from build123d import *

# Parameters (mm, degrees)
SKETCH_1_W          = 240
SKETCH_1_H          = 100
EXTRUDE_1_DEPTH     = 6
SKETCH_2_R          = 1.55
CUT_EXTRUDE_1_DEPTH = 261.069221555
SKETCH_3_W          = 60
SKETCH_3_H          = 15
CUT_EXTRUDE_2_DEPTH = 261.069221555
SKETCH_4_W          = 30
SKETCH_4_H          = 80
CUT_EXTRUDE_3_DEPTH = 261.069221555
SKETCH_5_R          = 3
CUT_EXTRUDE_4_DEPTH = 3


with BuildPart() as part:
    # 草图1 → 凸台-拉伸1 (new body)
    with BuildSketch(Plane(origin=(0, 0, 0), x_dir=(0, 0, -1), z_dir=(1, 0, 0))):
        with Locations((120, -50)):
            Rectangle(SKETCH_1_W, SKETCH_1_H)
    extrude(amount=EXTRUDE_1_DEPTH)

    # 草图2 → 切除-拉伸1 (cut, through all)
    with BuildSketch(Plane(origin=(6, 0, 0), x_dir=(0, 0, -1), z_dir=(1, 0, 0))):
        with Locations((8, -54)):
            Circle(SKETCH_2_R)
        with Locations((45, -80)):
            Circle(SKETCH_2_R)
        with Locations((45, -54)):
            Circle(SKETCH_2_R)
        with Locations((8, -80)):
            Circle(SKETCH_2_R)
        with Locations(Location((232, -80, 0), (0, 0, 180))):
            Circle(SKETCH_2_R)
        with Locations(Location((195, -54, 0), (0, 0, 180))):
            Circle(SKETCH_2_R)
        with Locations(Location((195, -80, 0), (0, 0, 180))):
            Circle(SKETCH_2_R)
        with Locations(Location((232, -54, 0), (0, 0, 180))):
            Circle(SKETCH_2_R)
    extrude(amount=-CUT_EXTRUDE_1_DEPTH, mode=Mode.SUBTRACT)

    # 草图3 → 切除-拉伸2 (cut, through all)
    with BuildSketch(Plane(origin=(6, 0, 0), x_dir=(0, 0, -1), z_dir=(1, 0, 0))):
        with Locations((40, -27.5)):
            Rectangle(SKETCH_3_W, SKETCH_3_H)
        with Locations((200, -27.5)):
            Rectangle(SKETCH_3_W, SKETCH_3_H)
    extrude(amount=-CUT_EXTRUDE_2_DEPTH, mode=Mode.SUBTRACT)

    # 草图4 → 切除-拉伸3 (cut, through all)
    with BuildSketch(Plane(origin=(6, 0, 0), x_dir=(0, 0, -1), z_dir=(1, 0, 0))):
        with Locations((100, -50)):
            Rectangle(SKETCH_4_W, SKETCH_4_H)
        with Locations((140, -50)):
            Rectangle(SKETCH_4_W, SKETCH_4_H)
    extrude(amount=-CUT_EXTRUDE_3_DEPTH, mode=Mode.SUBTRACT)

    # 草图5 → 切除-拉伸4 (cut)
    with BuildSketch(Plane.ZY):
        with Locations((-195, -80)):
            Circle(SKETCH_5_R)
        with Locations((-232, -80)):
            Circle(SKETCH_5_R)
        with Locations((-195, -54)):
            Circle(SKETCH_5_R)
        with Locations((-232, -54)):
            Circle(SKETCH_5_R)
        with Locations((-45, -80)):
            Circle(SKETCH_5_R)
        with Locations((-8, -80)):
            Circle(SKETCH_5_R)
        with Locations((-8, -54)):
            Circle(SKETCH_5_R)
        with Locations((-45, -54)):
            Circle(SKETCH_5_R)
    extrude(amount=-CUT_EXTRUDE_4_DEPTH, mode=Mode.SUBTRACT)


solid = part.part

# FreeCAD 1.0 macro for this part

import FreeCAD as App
import Part
import Sketcher
from FreeCAD import Vector
Q = App.Units.Quantity


def add_polygon(sketch, points):
    """Adds a closed chain of lines whose ends are joined by coincident constraints."""
    first, n = sketch.GeometryCount, len(points)
    for a, b in zip(points, points[1:] + points[:1]):
        sketch.addGeometry(Part.LineSegment(App.Vector(*a, 0), App.Vector(*b, 0)), False)
    for i in range(n):
        sketch.addConstraint(Sketcher.Constraint("Coincident", first + i, 2, first + (i + 1) % n, 1))

doc = App.newDocument("Part")
body = doc.addObject("PartDesign::Body", "Body")

# Sketch on YZ plane
sketch1 = body.newObject("Sketcher::SketchObject", "Sketch")
sketch1.AttachmentSupport = (doc.getObject("YZ_Plane"), [""])
sketch1.MapMode = "FlatFace"
add_polygon(sketch1, [(0, 0), (-100, 0), (-100, -240), (0, -240)])  # lines 0-3
sketch1.addConstraint([
    Sketcher.Constraint("Horizontal", 0),
    Sketcher.Constraint("Vertical", 1),
    Sketcher.Constraint("Horizontal", 2),
    Sketcher.Constraint("Vertical", 3),
    Sketcher.Constraint("Coincident", 3, 2, -1, 1),
    Sketcher.Constraint("DistanceX", 0, 2, 0, 1, Q("100 mm")),
    Sketcher.Constraint("DistanceY", 1, 2, 1, 1, Q("240 mm")),
])
pad1 = body.newObject("PartDesign::Pad", "Pad")
pad1.Profile = sketch1
pad1.Length = 6

# Sketch on YZ plane
sketch2 = body.newObject("Sketcher::SketchObject", "Sketch001")
sketch2.AttachmentSupport = (doc.getObject("YZ_Plane"), [""])
sketch2.MapMode = "FlatFace"
sketch2.AttachmentOffset = App.Placement(Vector(0, 0, 6), App.Rotation())
sketch2.addGeometry([
    Part.Circle(Vector(-54, -8, 0), Vector(0, 0, 1), 1.55),  # 0
    Part.Circle(Vector(-80, -45, 0), Vector(0, 0, 1), 1.55),  # 1
    Part.Circle(Vector(-54, -45, 0), Vector(0, 0, 1), 1.55),  # 2
    Part.Circle(Vector(-80, -8, 0), Vector(0, 0, 1), 1.55),  # 3
    Part.Circle(Vector(-80, -232, 0), Vector(0, 0, 1), 1.55),  # 4
    Part.Circle(Vector(-54, -195, 0), Vector(0, 0, 1), 1.55),  # 5
    Part.Circle(Vector(-80, -195, 0), Vector(0, 0, 1), 1.55),  # 6
    Part.Circle(Vector(-54, -232, 0), Vector(0, 0, 1), 1.55),  # 7
], False)
sketch2.addConstraint([
    Sketcher.Constraint("Equal", 0, 1),
    Sketcher.Constraint("Equal", 1, 2),
    Sketcher.Constraint("Equal", 2, 3),
    Sketcher.Constraint("Equal", 3, 4),
    Sketcher.Constraint("Equal", 4, 5),
    Sketcher.Constraint("Equal", 5, 6),
    Sketcher.Constraint("Equal", 6, 7),
    Sketcher.Constraint("Horizontal", 1, 3, 2, 3),
    Sketcher.Constraint("Horizontal", 0, 3, 3, 3),
    Sketcher.Constraint("Horizontal", 5, 3, 6, 3),
    Sketcher.Constraint("Horizontal", 4, 3, 7, 3),
    Sketcher.Constraint("Vertical", 0, 3, 2, 3),
    Sketcher.Constraint("Vertical", 1, 3, 3, 3),
    Sketcher.Constraint("Vertical", 3, 3, 4, 3),
    Sketcher.Constraint("Vertical", 2, 3, 5, 3),
    Sketcher.Constraint("Vertical", 4, 3, 6, 3),
    Sketcher.Constraint("Vertical", 5, 3, 7, 3),
    Sketcher.Constraint("Diameter", 0, Q("3.1 mm")),
    Sketcher.Constraint("DistanceX", 0, 3, -1, 1, Q("54 mm")),
    Sketcher.Constraint("DistanceY", 0, 3, -1, 1, Q("8 mm")),
    Sketcher.Constraint("DistanceX", 1, 3, -1, 1, Q("80 mm")),
    Sketcher.Constraint("DistanceY", 1, 3, -1, 1, Q("45 mm")),
    Sketcher.Constraint("DistanceY", 4, 3, -1, 1, Q("232 mm")),
    Sketcher.Constraint("DistanceY", 5, 3, -1, 1, Q("195 mm")),
])
pocket1 = body.newObject("PartDesign::Pocket", "Pocket")
pocket1.Profile = sketch2
pocket1.Type = "ThroughAll"

# Sketch on YZ plane
sketch3 = body.newObject("Sketcher::SketchObject", "Sketch002")
sketch3.AttachmentSupport = (doc.getObject("YZ_Plane"), [""])
sketch3.MapMode = "FlatFace"
sketch3.AttachmentOffset = App.Placement(Vector(0, 0, 6), App.Rotation())
add_polygon(sketch3, [(-20, -10), (-35, -10), (-35, -70), (-20, -70)])  # lines 0-3
add_polygon(sketch3, [(-20, -170), (-35, -170), (-35, -230), (-20, -230)])  # lines 4-7
sketch3.addConstraint([
    Sketcher.Constraint("Horizontal", 0),
    Sketcher.Constraint("Vertical", 1),
    Sketcher.Constraint("Horizontal", 2),
    Sketcher.Constraint("Vertical", 3),
    Sketcher.Constraint("Horizontal", 4),
    Sketcher.Constraint("Vertical", 5),
    Sketcher.Constraint("Horizontal", 6),
    Sketcher.Constraint("Vertical", 7),
    Sketcher.Constraint("Vertical", 1, 2, 4, 2),
    Sketcher.Constraint("Vertical", 3, 2, 6, 2),
    Sketcher.Constraint("Equal", 3, 5),
    Sketcher.Constraint("DistanceX", 0, 2, 0, 1, Q("15 mm")),
    Sketcher.Constraint("DistanceY", 1, 2, 1, 1, Q("60 mm")),
    Sketcher.Constraint("DistanceX", 0, 2, -1, 1, Q("35 mm")),
    Sketcher.Constraint("DistanceY", 0, 2, -1, 1, Q("10 mm")),
    Sketcher.Constraint("DistanceY", 4, 2, -1, 1, Q("170 mm")),
])
pocket2 = body.newObject("PartDesign::Pocket", "Pocket001")
pocket2.Profile = sketch3
pocket2.Type = "ThroughAll"

# Sketch on YZ plane
sketch4 = body.newObject("Sketcher::SketchObject", "Sketch003")
sketch4.AttachmentSupport = (doc.getObject("YZ_Plane"), [""])
sketch4.MapMode = "FlatFace"
sketch4.AttachmentOffset = App.Placement(Vector(0, 0, 6), App.Rotation())
add_polygon(sketch4, [(-10, -85), (-90, -85), (-90, -115), (-10, -115)])  # lines 0-3
add_polygon(sketch4, [(-10, -125), (-90, -125), (-90, -155), (-10, -155)])  # lines 4-7
sketch4.addConstraint([
    Sketcher.Constraint("Horizontal", 0),
    Sketcher.Constraint("Vertical", 1),
    Sketcher.Constraint("Horizontal", 2),
    Sketcher.Constraint("Vertical", 3),
    Sketcher.Constraint("Horizontal", 4),
    Sketcher.Constraint("Vertical", 5),
    Sketcher.Constraint("Horizontal", 6),
    Sketcher.Constraint("Vertical", 7),
    Sketcher.Constraint("Vertical", 1, 2, 4, 2),
    Sketcher.Constraint("Vertical", 3, 2, 6, 2),
    Sketcher.Constraint("Equal", 3, 5),
    Sketcher.Constraint("DistanceX", 0, 2, 0, 1, Q("80 mm")),
    Sketcher.Constraint("DistanceY", 1, 2, 1, 1, Q("30 mm")),
    Sketcher.Constraint("DistanceX", 0, 2, -1, 1, Q("90 mm")),
    Sketcher.Constraint("DistanceY", 0, 2, -1, 1, Q("85 mm")),
    Sketcher.Constraint("DistanceY", 4, 2, -1, 1, Q("125 mm")),
])
pocket3 = body.newObject("PartDesign::Pocket", "Pocket002")
pocket3.Profile = sketch4
pocket3.Type = "ThroughAll"

# Sketch on YZ plane
sketch5 = body.newObject("Sketcher::SketchObject", "Sketch004")
sketch5.AttachmentSupport = (doc.getObject("YZ_Plane"), [""])
sketch5.MapMode = "FlatFace"
sketch5.addGeometry([
    Part.Circle(Vector(-80, -195, 0), Vector(0, 0, 1), 3),  # 0
    Part.Circle(Vector(-80, -232, 0), Vector(0, 0, 1), 3),  # 1
    Part.Circle(Vector(-54, -195, 0), Vector(0, 0, 1), 3),  # 2
    Part.Circle(Vector(-54, -232, 0), Vector(0, 0, 1), 3),  # 3
    Part.Circle(Vector(-80, -45, 0), Vector(0, 0, 1), 3),  # 4
    Part.Circle(Vector(-80, -8, 0), Vector(0, 0, 1), 3),  # 5
    Part.Circle(Vector(-54, -8, 0), Vector(0, 0, 1), 3),  # 6
    Part.Circle(Vector(-54, -45, 0), Vector(0, 0, 1), 3),  # 7
], False)
sketch5.addConstraint([
    Sketcher.Constraint("Equal", 0, 1),
    Sketcher.Constraint("Equal", 1, 2),
    Sketcher.Constraint("Equal", 2, 3),
    Sketcher.Constraint("Equal", 3, 4),
    Sketcher.Constraint("Equal", 4, 5),
    Sketcher.Constraint("Equal", 5, 6),
    Sketcher.Constraint("Equal", 6, 7),
    Sketcher.Constraint("Horizontal", 0, 3, 2, 3),
    Sketcher.Constraint("Horizontal", 1, 3, 3, 3),
    Sketcher.Constraint("Horizontal", 5, 3, 6, 3),
    Sketcher.Constraint("Horizontal", 4, 3, 7, 3),
    Sketcher.Constraint("Vertical", 0, 3, 1, 3),
    Sketcher.Constraint("Vertical", 2, 3, 3, 3),
    Sketcher.Constraint("Vertical", 1, 3, 4, 3),
    Sketcher.Constraint("Vertical", 4, 3, 5, 3),
    Sketcher.Constraint("Vertical", 3, 3, 6, 3),
    Sketcher.Constraint("Vertical", 6, 3, 7, 3),
    Sketcher.Constraint("Diameter", 0, Q("6 mm")),
    Sketcher.Constraint("DistanceX", 0, 3, -1, 1, Q("80 mm")),
    Sketcher.Constraint("DistanceY", 0, 3, -1, 1, Q("195 mm")),
    Sketcher.Constraint("DistanceY", 1, 3, -1, 1, Q("232 mm")),
    Sketcher.Constraint("DistanceX", 2, 3, -1, 1, Q("54 mm")),
    Sketcher.Constraint("DistanceY", 4, 3, -1, 1, Q("45 mm")),
    Sketcher.Constraint("DistanceY", 5, 3, -1, 1, Q("8 mm")),
])
pocket4 = body.newObject("PartDesign::Pocket", "Pocket003")
pocket4.Profile = sketch5
pocket4.Length = 3
pocket4.Reversed = True

doc.recompute()
